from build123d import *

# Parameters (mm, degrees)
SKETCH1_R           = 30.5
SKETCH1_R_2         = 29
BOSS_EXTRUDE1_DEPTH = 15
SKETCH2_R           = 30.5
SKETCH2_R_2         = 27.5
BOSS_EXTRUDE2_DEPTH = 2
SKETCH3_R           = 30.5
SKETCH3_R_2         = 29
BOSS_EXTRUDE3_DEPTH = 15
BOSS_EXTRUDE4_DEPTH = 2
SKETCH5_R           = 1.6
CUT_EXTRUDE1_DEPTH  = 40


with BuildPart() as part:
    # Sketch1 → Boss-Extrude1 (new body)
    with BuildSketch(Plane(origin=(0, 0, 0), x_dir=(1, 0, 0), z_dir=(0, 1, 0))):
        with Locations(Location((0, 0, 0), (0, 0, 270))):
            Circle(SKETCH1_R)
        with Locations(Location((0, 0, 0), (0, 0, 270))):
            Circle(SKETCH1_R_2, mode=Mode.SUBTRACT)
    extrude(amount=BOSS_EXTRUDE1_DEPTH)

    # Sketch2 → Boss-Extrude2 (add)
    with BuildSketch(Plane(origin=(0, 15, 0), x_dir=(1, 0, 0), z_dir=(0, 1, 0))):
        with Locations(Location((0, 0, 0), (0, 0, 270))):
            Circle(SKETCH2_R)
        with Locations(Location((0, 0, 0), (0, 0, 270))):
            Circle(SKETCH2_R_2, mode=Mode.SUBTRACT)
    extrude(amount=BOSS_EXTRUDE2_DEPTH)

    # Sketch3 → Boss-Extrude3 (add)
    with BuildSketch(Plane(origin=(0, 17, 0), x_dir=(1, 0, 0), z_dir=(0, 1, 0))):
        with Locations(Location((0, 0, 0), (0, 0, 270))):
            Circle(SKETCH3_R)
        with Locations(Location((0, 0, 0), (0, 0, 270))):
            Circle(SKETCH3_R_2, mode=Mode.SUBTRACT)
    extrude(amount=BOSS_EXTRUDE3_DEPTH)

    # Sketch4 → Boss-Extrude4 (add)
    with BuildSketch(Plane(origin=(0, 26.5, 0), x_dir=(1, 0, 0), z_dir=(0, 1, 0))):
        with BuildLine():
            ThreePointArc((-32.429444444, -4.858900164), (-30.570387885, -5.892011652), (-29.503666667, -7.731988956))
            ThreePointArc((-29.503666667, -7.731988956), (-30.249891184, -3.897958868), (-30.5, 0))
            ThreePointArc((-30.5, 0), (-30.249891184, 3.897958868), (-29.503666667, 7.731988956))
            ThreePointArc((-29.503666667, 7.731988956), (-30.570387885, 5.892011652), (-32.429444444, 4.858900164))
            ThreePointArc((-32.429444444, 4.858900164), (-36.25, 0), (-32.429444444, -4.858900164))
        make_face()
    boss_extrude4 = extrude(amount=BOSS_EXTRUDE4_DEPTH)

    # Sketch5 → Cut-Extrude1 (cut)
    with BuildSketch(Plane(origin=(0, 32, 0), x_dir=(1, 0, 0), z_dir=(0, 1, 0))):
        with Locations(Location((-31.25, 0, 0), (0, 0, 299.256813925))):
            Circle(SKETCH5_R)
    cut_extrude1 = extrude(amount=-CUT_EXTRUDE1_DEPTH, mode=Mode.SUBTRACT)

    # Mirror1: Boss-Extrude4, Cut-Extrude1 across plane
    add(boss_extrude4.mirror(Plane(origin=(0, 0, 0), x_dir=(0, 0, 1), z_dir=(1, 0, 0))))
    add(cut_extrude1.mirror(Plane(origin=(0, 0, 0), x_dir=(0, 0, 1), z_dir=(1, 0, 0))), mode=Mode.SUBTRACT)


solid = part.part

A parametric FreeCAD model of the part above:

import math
import FreeCAD as App
import Part
import Sketcher
Q = App.Units.Quantity

doc = App.newDocument("Part")
body = doc.addObject("PartDesign::Body", "Body")

# Sketch on XZ plane
sketch1 = body.newObject("Sketcher::SketchObject", "Sketch")
sketch1.AttachmentSupport = (doc.getObject("XZ_Plane"), [""])
sketch1.MapMode = "FlatFace"
sketch1.addGeometry([
    Part.Circle(App.Vector(0, 0, 0), App.Vector(0, 0, 1), 30),
    Part.Circle(App.Vector(0, 0, 0), App.Vector(0, 0, 1), 29),
], False)
sketch1.addConstraint([
    Sketcher.Constraint("Coincident", 0, 3, -1, 1),
    Sketcher.Constraint("Coincident", 1, 3, -1, 1),
    Sketcher.Constraint("Diameter", 0, Q("61 mm")),
    Sketcher.Constraint("Diameter", 1, Q("58 mm")),
])
pad1 = body.newObject("PartDesign::Pad", "Pad")
pad1.Profile = sketch1
pad1.Length = 15
pad1.Reversed = True

# Sketch on XZ plane
sketch2 = body.newObject("Sketcher::SketchObject", "Sketch001")
sketch2.AttachmentSupport = (doc.getObject("XZ_Plane"), [""])
sketch2.MapMode = "FlatFace"
sketch2.AttachmentOffset = App.Placement(App.Vector(0, 0, -15), App.Rotation())
sketch2.addGeometry([
    Part.Circle(App.Vector(0, 0, 0), App.Vector(0, 0, 1), 30),
    Part.Circle(App.Vector(0, 0, 0), App.Vector(0, 0, 1), 28),
], False)
sketch2.addConstraint([
    Sketcher.Constraint("Coincident", 0, 3, -1, 1),
    Sketcher.Constraint("Coincident", 1, 3, -1, 1),
    Sketcher.Constraint("Diameter", 0, Q("61 mm")),
    Sketcher.Constraint("Diameter", 1, Q("55 mm")),
])
pad2 = body.newObject("PartDesign::Pad", "Pad001")
pad2.Profile = sketch2
pad2.Length = 2
pad2.Reversed = True

# Sketch on XZ plane
sketch3 = body.newObject("Sketcher::SketchObject", "Sketch002")
sketch3.AttachmentSupport = (doc.getObject("XZ_Plane"), [""])
sketch3.MapMode = "FlatFace"
sketch3.AttachmentOffset = App.Placement(App.Vector(0, 0, -17), App.Rotation())
sketch3.addGeometry([
    Part.Circle(App.Vector(0, 0, 0), App.Vector(0, 0, 1), 30),
    Part.Circle(App.Vector(0, 0, 0), App.Vector(0, 0, 1), 29),
], False)
sketch3.addConstraint([
    Sketcher.Constraint("Coincident", 0, 3, -1, 1),
    Sketcher.Constraint("Coincident", 1, 3, -1, 1),
    Sketcher.Constraint("Diameter", 0, Q("61 mm")),
    Sketcher.Constraint("Diameter", 1, Q("58 mm")),
])
pad3 = body.newObject("PartDesign::Pad", "Pad002")
pad3.Profile = sketch3
pad3.Length = 15
pad3.Reversed = True

# Sketch on XZ plane
sketch4 = body.newObject("Sketcher::SketchObject", "Sketch003")
sketch4.AttachmentSupport = (doc.getObject("XZ_Plane"), [""])
sketch4.MapMode = "FlatFace"
sketch4.AttachmentOffset = App.Placement(App.Vector(0, 0, -26.5), App.Rotation())
sketch4.addGeometry([
    Part.ArcOfCircle(Part.Circle(App.Vector(-33.4, 8.7, 0), App.Vector(0, 0, 1), 4), math.radians(-76), math.radians(-15)),  # 0
    Part.ArcOfCircle(Part.Circle(App.Vector(0, 0, 0), App.Vector(0, 0, 1), 30.5), math.radians(165.31), math.radians(180)),  # 1
    Part.ArcOfCircle(Part.Circle(App.Vector(0, 0, 0), App.Vector(0, 0, 1), 30.5), math.radians(-180), math.radians(-165.31)),  # 2
    Part.ArcOfCircle(Part.Circle(App.Vector(-33.4, -8.7, 0), App.Vector(0, 0, 1), 4), math.radians(15), math.radians(76)),  # 3
    Part.ArcOfCircle(Part.Circle(App.Vector(-31.2, 0, 0), App.Vector(0, 0, 1), 5), math.radians(104), math.radians(256)),  # 4
], False)
sketch4.addConstraint([
    Sketcher.Constraint("Tangent", 0, 2, 1, 1),
    Sketcher.Constraint("Tangent", 1, 2, 2, 1),
    Sketcher.Constraint("Tangent", 2, 2, 3, 1),
    Sketcher.Constraint("Tangent", 3, 2, 4, 2),
    Sketcher.Constraint("Tangent", 4, 1, 0, 1),
    Sketcher.Constraint("Coincident", 1, 3, -1, 1),
    Sketcher.Constraint("Equal", 1, 2),
    Sketcher.Constraint("Equal", 0, 3),
    Sketcher.Constraint("PointOnObject", 4, 3, -1),
    Sketcher.Constraint("PointOnObject", 1, 2, -1),
    Sketcher.Constraint("Radius", 0, Q("4 mm")),
    Sketcher.Constraint("Radius", 4, Q("5 mm")),
    Sketcher.Constraint("Radius", 1, Q("30.5 mm")),
    Sketcher.Constraint("DistanceX", 4, 3, -1, 1, Q("31.25 mm")),
])
pad4 = body.newObject("PartDesign::Pad", "Pad003")
pad4.Profile = sketch4
pad4.Length = 2
pad4.Reversed = True

# Sketch on XZ plane
sketch5 = body.newObject("Sketcher::SketchObject", "Sketch004")
sketch5.AttachmentSupport = (doc.getObject("XZ_Plane"), [""])
sketch5.MapMode = "FlatFace"
sketch5.AttachmentOffset = App.Placement(App.Vector(0, 0, -32), App.Rotation())
sketch5.addGeometry(Part.Circle(App.Vector(-31.2, 0, 0), App.Vector(0, 0, 1), 1.6), False)
sketch5.addConstraint([
    Sketcher.Constraint("PointOnObject", 0, 3, -1),
    Sketcher.Constraint("Diameter", 0, Q("3.2 mm")),
    Sketcher.Constraint("DistanceX", 0, 3, -1, 1, Q("31.25 mm")),
])
pocket1 = body.newObject("PartDesign::Pocket", "Pocket")
pocket1.Profile = sketch5
pocket1.Length = 40
pocket1.Reversed = True
doc.recompute()

mirrored = body.newObject("PartDesign::Mirrored", "Mirrored")
mirrored.Originals = [pad4, pocket1]
mirrored.MirrorPlane = (doc.getObject("YZ_Plane"), [""])
body.Tip = mirrored

doc.recompute()
